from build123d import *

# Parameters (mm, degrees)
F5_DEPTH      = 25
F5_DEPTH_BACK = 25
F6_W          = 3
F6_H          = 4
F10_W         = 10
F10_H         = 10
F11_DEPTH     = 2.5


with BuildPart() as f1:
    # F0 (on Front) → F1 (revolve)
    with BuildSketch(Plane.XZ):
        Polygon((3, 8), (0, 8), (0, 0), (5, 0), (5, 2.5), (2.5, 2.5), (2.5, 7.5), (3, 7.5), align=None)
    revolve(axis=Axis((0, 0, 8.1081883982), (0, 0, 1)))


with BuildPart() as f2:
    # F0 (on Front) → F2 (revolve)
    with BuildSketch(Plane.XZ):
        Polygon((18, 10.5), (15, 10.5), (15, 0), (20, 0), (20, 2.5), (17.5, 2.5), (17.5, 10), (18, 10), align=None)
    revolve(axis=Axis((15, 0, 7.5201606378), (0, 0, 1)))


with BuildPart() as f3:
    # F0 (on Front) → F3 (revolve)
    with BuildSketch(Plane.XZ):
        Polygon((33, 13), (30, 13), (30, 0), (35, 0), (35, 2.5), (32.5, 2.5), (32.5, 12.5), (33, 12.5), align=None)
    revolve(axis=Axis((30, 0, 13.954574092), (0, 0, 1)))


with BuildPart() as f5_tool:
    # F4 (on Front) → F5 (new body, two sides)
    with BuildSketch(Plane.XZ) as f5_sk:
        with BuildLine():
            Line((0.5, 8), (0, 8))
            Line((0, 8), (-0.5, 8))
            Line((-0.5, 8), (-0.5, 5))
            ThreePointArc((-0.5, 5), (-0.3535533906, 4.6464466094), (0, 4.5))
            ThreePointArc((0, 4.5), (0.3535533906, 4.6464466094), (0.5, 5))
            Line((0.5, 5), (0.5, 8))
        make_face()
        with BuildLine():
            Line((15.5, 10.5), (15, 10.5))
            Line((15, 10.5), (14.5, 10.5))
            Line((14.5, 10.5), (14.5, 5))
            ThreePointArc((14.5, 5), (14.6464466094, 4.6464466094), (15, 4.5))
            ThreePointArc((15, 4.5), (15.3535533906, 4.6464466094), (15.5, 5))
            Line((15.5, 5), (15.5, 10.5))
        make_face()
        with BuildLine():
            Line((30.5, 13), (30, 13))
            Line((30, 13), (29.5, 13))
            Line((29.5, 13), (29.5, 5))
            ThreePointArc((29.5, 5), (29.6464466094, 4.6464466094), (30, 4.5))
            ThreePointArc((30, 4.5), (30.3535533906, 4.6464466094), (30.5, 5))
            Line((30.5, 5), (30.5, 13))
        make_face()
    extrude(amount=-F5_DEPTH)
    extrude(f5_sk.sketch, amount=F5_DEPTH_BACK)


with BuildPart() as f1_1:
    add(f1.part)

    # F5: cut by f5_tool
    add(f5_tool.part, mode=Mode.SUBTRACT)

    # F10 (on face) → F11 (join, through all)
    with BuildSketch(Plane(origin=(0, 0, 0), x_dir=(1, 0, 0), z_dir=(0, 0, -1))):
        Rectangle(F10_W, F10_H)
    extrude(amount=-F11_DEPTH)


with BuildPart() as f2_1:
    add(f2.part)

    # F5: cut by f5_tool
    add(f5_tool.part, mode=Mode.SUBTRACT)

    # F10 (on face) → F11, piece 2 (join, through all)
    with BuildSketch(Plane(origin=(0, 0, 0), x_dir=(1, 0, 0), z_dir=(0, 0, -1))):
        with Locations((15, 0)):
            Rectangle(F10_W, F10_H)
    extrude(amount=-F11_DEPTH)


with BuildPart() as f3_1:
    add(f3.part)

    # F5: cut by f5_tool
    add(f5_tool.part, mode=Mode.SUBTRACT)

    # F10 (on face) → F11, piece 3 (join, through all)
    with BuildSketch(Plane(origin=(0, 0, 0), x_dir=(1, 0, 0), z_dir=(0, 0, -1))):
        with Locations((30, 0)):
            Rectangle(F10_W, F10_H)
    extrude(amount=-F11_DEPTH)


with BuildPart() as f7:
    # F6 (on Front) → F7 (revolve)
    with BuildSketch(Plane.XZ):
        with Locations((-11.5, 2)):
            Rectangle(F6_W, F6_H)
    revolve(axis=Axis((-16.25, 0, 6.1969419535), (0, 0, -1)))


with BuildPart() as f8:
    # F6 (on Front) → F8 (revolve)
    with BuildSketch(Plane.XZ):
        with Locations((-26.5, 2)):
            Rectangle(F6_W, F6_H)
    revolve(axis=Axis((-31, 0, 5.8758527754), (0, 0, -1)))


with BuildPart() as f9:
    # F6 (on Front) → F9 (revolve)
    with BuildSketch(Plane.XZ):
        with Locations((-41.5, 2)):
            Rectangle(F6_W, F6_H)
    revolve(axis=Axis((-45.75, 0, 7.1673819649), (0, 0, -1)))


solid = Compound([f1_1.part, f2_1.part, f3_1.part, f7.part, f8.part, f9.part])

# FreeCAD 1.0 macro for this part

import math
import FreeCAD as App
import Part
import Sketcher

V = App.Vector
Q = App.Units.Quantity


def add_polygon(sketch, points):
    """Adds a closed chain of lines whose ends are joined by coincident constraints."""
    first, n = sketch.GeometryCount, len(points)
    for a, b in zip(points, points[1:] + points[:1]):
        sketch.addGeometry(Part.LineSegment(App.Vector(*a, 0), App.Vector(*b, 0)), False)
    for i in range(n):
        sketch.addConstraint(Sketcher.Constraint("Coincident", first + i, 2, first + (i + 1) % n, 1))

doc = App.newDocument("Part")
params = doc.addObject("Spreadsheet::Sheet", "Params")
for row, (alias, value) in enumerate([
    ("sketch1_width", "3 mm"),
    ("sketch1_width2", "5 mm"),
    ("sketch1_height", "8 mm"),
    ("revolution_angle", "360 deg"),
    ("sketch2_width", "3 mm"),
    ("sketch2_width2", "5 mm"),
    ("sketch2_width3", "2.5 mm"),
    ("sketch2_height", "10.5 mm"),
    ("revolution2_angle", "360 deg"),
    ("sketch3_width", "3 mm"),
    ("sketch3_width2", "5 mm"),
    ("sketch3_height", "13 mm"),
    ("sketch3_height2", "10 mm"),
    ("revolution3_angle", "360 deg"),
    ("sketch4_radius", "0.5 mm"),
    ("sketch4_height", "3 mm"),
    ("sketch4_height2", "8 mm"),
    ("sketch4_height3", "5.5 mm"),
    ("pad1_length", "25 mm"),
    ("pad1_length2", "25 mm"),
    ("sketch5_width", "10 mm"),
    ("pad2_length", "2.5 mm"),
    ("sketch6_width", "10 mm"),
    ("pad3_length", "2.5 mm"),
    ("sketch7_width", "10 mm"),
    ("pad4_length", "2.5 mm"),
    ("sketch8_width", "3 mm"),
    ("sketch8_height", "4 mm"),
    ("revolution4_angle", "360 deg"),
    ("sketch9_width", "3 mm"),
    ("sketch9_height", "4 mm"),
    ("revolution5_angle", "360 deg"),
    ("sketch10_width", "3 mm"),
    ("sketch10_height", "4 mm"),
    ("revolution6_angle", "360 deg"),
], start=1):
    params.set(f"A{row}", alias)
    params.set(f"B{row}", "=" + value)
    params.setAlias(f"B{row}", alias)

body = doc.addObject("PartDesign::Body", "Body")

sketch1 = doc.addObject("Sketcher::SketchObject", "Sketch")
body.addObject(sketch1)
sketch1.AttachmentSupport = (doc.XZ_Plane, [""])
sketch1.MapMode = "FlatFace"
add_polygon(sketch1, [(3, 8), (0, 8), (0, 0), (5, 0), (5, 2.5), (2.5, 2.5), (2.5, 7.5), (3, 7.5)])
sketch1.addConstraint([
    Sketcher.Constraint("Horizontal", 0),
    Sketcher.Constraint("Vertical", 1),
    Sketcher.Constraint("Horizontal", 2),
    Sketcher.Constraint("Vertical", 3),
    Sketcher.Constraint("Horizontal", 4),
    Sketcher.Constraint("Vertical", 5),
    Sketcher.Constraint("Horizontal", 6),
    Sketcher.Constraint("Vertical", 7),
    Sketcher.Constraint("Coincident", 1, 2, -1, 1),
    Sketcher.Constraint("Equal", 4, 3),
    Sketcher.Constraint("Equal", 2, 5),
    Sketcher.Constraint("Equal", 6, 7),
    Sketcher.Constraint("DistanceX", 0, 2, 0, 1, Q("3 mm")),
    Sketcher.Constraint("DistanceX", 2, 1, 2, 2, Q("5 mm")),
    Sketcher.Constraint("DistanceY", 1, 2, 1, 1, Q("8 mm")),
])
sketch1.setExpression("Constraints[20]", "Params.sketch1_width")
sketch1.setExpression("Constraints[21]", "Params.sketch1_width2")
sketch1.setExpression("Constraints[22]", "Params.sketch1_height")
revolution = doc.addObject("PartDesign::Revolution", "Revolution")
body.addObject(revolution)
revolution.Profile = sketch1
revolution.ReferenceAxis = (sketch1, ["V_Axis"])
revolution.setExpression("Angle", "Params.revolution_angle")
body2 = doc.addObject("PartDesign::Body", "Body001")

sketch2 = doc.addObject("Sketcher::SketchObject", "Sketch001")
body2.addObject(sketch2)
sketch2.AttachmentSupport = (doc.getObject("XZ_Plane001"), [""])
sketch2.MapMode = "FlatFace"
add_polygon(sketch2, [(18, 10.5), (15, 10.5), (15, 0), (20, 0), (20, 2.5), (17.5, 2.5), (17.5, 10), (18, 10)])
sketch2.addGeometry(Part.LineSegment(V(15, 0, 0), V(15, 10.5, 0)), True)
sketch2.addConstraint([
    Sketcher.Constraint("Horizontal", 0),
    Sketcher.Constraint("Vertical", 1),
    Sketcher.Constraint("Horizontal", 2),
    Sketcher.Constraint("Vertical", 3),
    Sketcher.Constraint("Horizontal", 4),
    Sketcher.Constraint("Vertical", 5),
    Sketcher.Constraint("Horizontal", 6),
    Sketcher.Constraint("Vertical", 7),
    Sketcher.Constraint("Vertical", 8),
    Sketcher.Constraint("Coincident", 8, 1, 1, 2),
    Sketcher.Constraint("PointOnObject", 1, 2, -1),
    Sketcher.Constraint("Horizontal", 7, 2, 8, 2),
    Sketcher.Constraint("Equal", 4, 3),
    Sketcher.Constraint("Equal", 6, 7),
    Sketcher.Constraint("DistanceX", 0, 2, 0, 1, Q("3 mm")),
    Sketcher.Constraint("DistanceX", 2, 1, 2, 2, Q("5 mm")),
    Sketcher.Constraint("DistanceX", 4, 2, 4, 1, Q("2.5 mm")),
    Sketcher.Constraint("DistanceY", 1, 2, 1, 1, Q("10.5 mm")),
    Sketcher.Constraint("DistanceX", -1, 1, 0, 2, Q("15 mm")),
])
sketch2.setExpression("Constraints[22]", "Params.sketch2_width")
sketch2.setExpression("Constraints[23]", "Params.sketch2_width2")
sketch2.setExpression("Constraints[24]", "Params.sketch2_width3")
sketch2.setExpression("Constraints[25]", "Params.sketch2_height")
revolution2 = doc.addObject("PartDesign::Revolution", "Revolution001")
body2.addObject(revolution2)
revolution2.Profile = sketch2
revolution2.ReferenceAxis = (sketch2, ["Axis0"])
revolution2.setExpression("Angle", "Params.revolution2_angle")
body3 = doc.addObject("PartDesign::Body", "Body002")

sketch3 = doc.addObject("Sketcher::SketchObject", "Sketch002")
body3.addObject(sketch3)
sketch3.AttachmentSupport = (doc.getObject("XZ_Plane002"), [""])
sketch3.MapMode = "FlatFace"
add_polygon(sketch3, [(33, 13), (30, 13), (30, 0), (35, 0), (35, 2.5), (32.5, 2.5), (32.5, 12.5), (33, 12.5)])
sketch3.addGeometry(Part.LineSegment(V(30, 0, 0), V(30, 13, 0)), True)
sketch3.addConstraint([
    Sketcher.Constraint("Horizontal", 0),
    Sketcher.Constraint("Vertical", 1),
    Sketcher.Constraint("Horizontal", 2),
    Sketcher.Constraint("Vertical", 3),
    Sketcher.Constraint("Horizontal", 4),
    Sketcher.Constraint("Vertical", 5),
    Sketcher.Constraint("Horizontal", 6),
    Sketcher.Constraint("Vertical", 7),
    Sketcher.Constraint("Vertical", 8),
    Sketcher.Constraint("Coincident", 8, 1, 1, 2),
    Sketcher.Constraint("PointOnObject", 1, 2, -1),
    Sketcher.Constraint("Horizontal", 7, 2, 8, 2),
    Sketcher.Constraint("Equal", 4, 3),
    Sketcher.Constraint("Equal", 6, 7),
    Sketcher.Constraint("DistanceX", 0, 2, 0, 1, Q("3 mm")),
    Sketcher.Constraint("DistanceX", 2, 1, 2, 2, Q("5 mm")),
    Sketcher.Constraint("DistanceY", 1, 2, 1, 1, Q("13 mm")),
    Sketcher.Constraint("DistanceY", 5, 1, 5, 2, Q("10 mm")),
    Sketcher.Constraint("DistanceX", -1, 1, 0, 2, Q("30 mm")),
])
sketch3.setExpression("Constraints[22]", "Params.sketch3_width")
sketch3.setExpression("Constraints[23]", "Params.sketch3_width2")
sketch3.setExpression("Constraints[24]", "Params.sketch3_height")
sketch3.setExpression("Constraints[25]", "Params.sketch3_height2")
revolution3 = doc.addObject("PartDesign::Revolution", "Revolution002")
body3.addObject(revolution3)
revolution3.Profile = sketch3
revolution3.ReferenceAxis = (sketch3, ["Axis0"])
revolution3.setExpression("Angle", "Params.revolution3_angle")
body4 = doc.addObject("PartDesign::Body", "Body003")
body4.AllowCompound = True

sketch4 = doc.addObject("Sketcher::SketchObject", "Sketch003")
body4.addObject(sketch4)
sketch4.AttachmentSupport = (doc.getObject("XZ_Plane003"), [""])
sketch4.MapMode = "FlatFace"
sketch4.addGeometry([
    Part.LineSegment(V(0.5, 8, 0), V(-0.5, 8, 0)),
    Part.LineSegment(V(-0.5, 8, 0), V(-0.5, 5, 0)),
    Part.ArcOfCircle(Part.Circle(V(0, 5, 0), V(0, 0, 1), 0.5), math.radians(180), math.radians(270)),
    Part.ArcOfCircle(Part.Circle(V(0, 5, 0), V(0, 0, 1), 0.5), math.radians(-90), math.radians(0)),
    Part.LineSegment(V(0.5, 5, 0), V(0.5, 8, 0)),
    Part.LineSegment(V(15.5, 10.5, 0), V(14.5, 10.5, 0)),
    Part.LineSegment(V(14.5, 10.5, 0), V(14.5, 5, 0)),
    Part.ArcOfCircle(Part.Circle(V(15, 5, 0), V(0, 0, 1), 0.5), math.radians(180), math.radians(270)),
    Part.ArcOfCircle(Part.Circle(V(15, 5, 0), V(0, 0, 1), 0.5), math.radians(-90), math.radians(0)),
    Part.LineSegment(V(15.5, 5, 0), V(15.5, 10.5, 0)),
    Part.LineSegment(V(30.5, 13, 0), V(29.5, 13, 0)),
    Part.LineSegment(V(29.5, 13, 0), V(29.5, 5, 0)),
    Part.ArcOfCircle(Part.Circle(V(30, 5, 0), V(0, 0, 1), 0.5), math.radians(180), math.radians(270)),
    Part.ArcOfCircle(Part.Circle(V(30, 5, 0), V(0, 0, 1), 0.5), math.radians(-90), math.radians(0)),
    Part.LineSegment(V(30.5, 5, 0), V(30.5, 13, 0)),
], False)
sketch4.addConstraint([
    Sketcher.Constraint("Coincident", 0, 2, 1, 1),
    Sketcher.Constraint("Tangent", 1, 2, 2, 1),
    Sketcher.Constraint("Tangent", 2, 2, 3, 1),
    Sketcher.Constraint("Tangent", 3, 2, 4, 1),
    Sketcher.Constraint("Coincident", 4, 2, 0, 1),
    Sketcher.Constraint("Coincident", 5, 2, 6, 1),
    Sketcher.Constraint("Tangent", 6, 2, 7, 1),
    Sketcher.Constraint("Tangent", 7, 2, 8, 1),
    Sketcher.Constraint("Tangent", 8, 2, 9, 1),
    Sketcher.Constraint("Coincident", 9, 2, 5, 1),
    Sketcher.Constraint("Coincident", 10, 2, 11, 1),
    Sketcher.Constraint("Tangent", 11, 2, 12, 1),
    Sketcher.Constraint("Tangent", 12, 2, 13, 1),
    Sketcher.Constraint("Tangent", 13, 2, 14, 1),
    Sketcher.Constraint("Coincident", 14, 2, 10, 1),
    Sketcher.Constraint("Horizontal", 0),
    Sketcher.Constraint("Vertical", 1),
    Sketcher.Constraint("Vertical", 4),
    Sketcher.Constraint("Horizontal", 5),
    Sketcher.Constraint("Vertical", 6),
    Sketcher.Constraint("Vertical", 9),
    Sketcher.Constraint("Horizontal", 10),
    Sketcher.Constraint("Vertical", 11),
    Sketcher.Constraint("Vertical", 14),
    Sketcher.Constraint("Equal", 2, 3),
    Sketcher.Constraint("Equal", 3, 7),
    Sketcher.Constraint("Equal", 7, 8),
    Sketcher.Constraint("Equal", 8, 12),
    Sketcher.Constraint("Equal", 12, 13),
    Sketcher.Constraint("PointOnObject", 2, 3, -2),
    Sketcher.Constraint("PointOnObject", 2, 2, -2),
    Sketcher.Constraint("Horizontal", 3, 3, 7, 3),
    Sketcher.Constraint("Horizontal", 8, 3, 12, 3),
    Sketcher.Constraint("Vertical", 8, 3, 7, 2),
    Sketcher.Constraint("Vertical", 13, 3, 12, 2),
    Sketcher.Constraint("Radius", 2, Q("0.5 mm")),
    Sketcher.Constraint("DistanceY", 1, 2, 1, 1, Q("3 mm")),
    Sketcher.Constraint("DistanceY", 11, 2, 11, 1, Q("8 mm")),
    Sketcher.Constraint("DistanceY", 6, 2, 6, 1, Q("5.5 mm")),
    Sketcher.Constraint("DistanceY", -1, 1, 2, 3, Q("5 mm")),
    Sketcher.Constraint("DistanceX", -1, 1, 7, 3, Q("15 mm")),
    Sketcher.Constraint("DistanceX", -1, 1, 12, 3, Q("30 mm")),
])
sketch4.setExpression("Constraints[35]", "Params.sketch4_radius")
sketch4.setExpression("Constraints[36]", "Params.sketch4_height")
sketch4.setExpression("Constraints[37]", "Params.sketch4_height2")
sketch4.setExpression("Constraints[38]", "Params.sketch4_height3")
pad1 = doc.addObject("PartDesign::Pad", "Pad")
body4.addObject(pad1)
pad1.Profile = sketch4
pad1.Type = "TwoLengths"
pad1.setExpression("Length", "Params.pad1_length")
pad1.setExpression("Length2", "Params.pad1_length2")
pad1.Reversed = True
doc.recompute()

body5 = doc.addObject("PartDesign::Body", "Body004")
body5.BaseFeature = body4
boolean = doc.addObject("PartDesign::Boolean", "Boolean")
body.addObject(boolean)
boolean.Type = "Cut"
boolean.addObjects([body5])
doc.recompute()

sketch5 = doc.addObject("Sketcher::SketchObject", "Sketch004")
body.addObject(sketch5)
sketch5.AttachmentSupport = (doc.XY_Plane, [""])
sketch5.MapMode = "FlatFace"
add_polygon(sketch5, [(-5, -5), (-5, 5), (5, 5), (5, -5)])
sketch5.addConstraint([
    Sketcher.Constraint("Vertical", 0),
    Sketcher.Constraint("Horizontal", 1),
    Sketcher.Constraint("Vertical", 2),
    Sketcher.Constraint("Horizontal", 3),
    Sketcher.Constraint("Symmetric", 0, 2, 2, 2, -1, 1),
    Sketcher.Constraint("Equal", 3, 0),
    Sketcher.Constraint("DistanceX", 1, 1, 1, 2, Q("10 mm")),
])
sketch5.setExpression("Constraints[10]", "Params.sketch5_width")
pad2 = doc.addObject("PartDesign::Pad", "Pad001")
body.addObject(pad2)
pad2.Profile = sketch5
pad2.setExpression("Length", "Params.pad2_length")
doc.recompute()

body6 = doc.addObject("PartDesign::Body", "Body005")
body6.BaseFeature = body4
boolean2 = doc.addObject("PartDesign::Boolean", "Boolean001")
body2.addObject(boolean2)
boolean2.Type = "Cut"
boolean2.addObjects([body6])
doc.recompute()

sketch6 = doc.addObject("Sketcher::SketchObject", "Sketch005")
body2.addObject(sketch6)
sketch6.AttachmentSupport = (doc.getObject("XY_Plane001"), [""])
sketch6.MapMode = "FlatFace"
add_polygon(sketch6, [(10, -5), (10, 5), (20, 5), (20, -5)])
sketch6.addConstraint([
    Sketcher.Constraint("Vertical", 0),
    Sketcher.Constraint("Horizontal", 1),
    Sketcher.Constraint("Vertical", 2),
    Sketcher.Constraint("Horizontal", 3),
    Sketcher.Constraint("Equal", 3, 0),
    Sketcher.Constraint("DistanceX", 1, 1, 1, 2, Q("10 mm")),
    Sketcher.Constraint("DistanceX", -1, 1, 0, 2, Q("10 mm")),
    Sketcher.Constraint("DistanceY", -1, 1, 0, 2, Q("5 mm")),
])
sketch6.setExpression("Constraints[9]", "Params.sketch6_width")
pad3 = doc.addObject("PartDesign::Pad", "Pad002")
body2.addObject(pad3)
pad3.Profile = sketch6
pad3.setExpression("Length", "Params.pad3_length")
doc.recompute()

boolean3 = doc.addObject("PartDesign::Boolean", "Boolean002")
body3.addObject(boolean3)
boolean3.Type = "Cut"
boolean3.addObjects([body4])

sketch7 = doc.addObject("Sketcher::SketchObject", "Sketch006")
body3.addObject(sketch7)
sketch7.AttachmentSupport = (doc.getObject("XY_Plane002"), [""])
sketch7.MapMode = "FlatFace"
add_polygon(sketch7, [(25, -5), (25, 5), (35, 5), (35, -5)])
sketch7.addConstraint([
    Sketcher.Constraint("Vertical", 0),
    Sketcher.Constraint("Horizontal", 1),
    Sketcher.Constraint("Vertical", 2),
    Sketcher.Constraint("Horizontal", 3),
    Sketcher.Constraint("Equal", 3, 0),
    Sketcher.Constraint("DistanceX", 1, 1, 1, 2, Q("10 mm")),
    Sketcher.Constraint("DistanceX", -1, 1, 0, 2, Q("25 mm")),
    Sketcher.Constraint("DistanceY", -1, 1, 0, 2, Q("5 mm")),
])
sketch7.setExpression("Constraints[9]", "Params.sketch7_width")
pad4 = doc.addObject("PartDesign::Pad", "Pad003")
body3.addObject(pad4)
pad4.Profile = sketch7
pad4.setExpression("Length", "Params.pad4_length")
body7 = doc.addObject("PartDesign::Body", "Body006")

sketch8 = doc.addObject("Sketcher::SketchObject", "Sketch007")
body7.addObject(sketch8)
sketch8.AttachmentSupport = (doc.getObject("XZ_Plane006"), [""])
sketch8.MapMode = "FlatFace"
add_polygon(sketch8, [(-13, 4), (-13, 0), (-10, 0), (-10, 4)])
sketch8.addGeometry(Part.LineSegment(V(-16.2, 4, 0), V(-16.2, 0, 0)), True)
sketch8.addConstraint([
    Sketcher.Constraint("Vertical", 0),
    Sketcher.Constraint("Horizontal", 1),
    Sketcher.Constraint("Vertical", 2),
    Sketcher.Constraint("Horizontal", 3),
    Sketcher.Constraint("Vertical", 4),
    Sketcher.Constraint("PointOnObject", 0, 2, -1),
    Sketcher.Constraint("PointOnObject", 4, 2, -1),
    Sketcher.Constraint("Horizontal", 3, 2, 4, 1),
    Sketcher.Constraint("DistanceX", 1, 1, 1, 2, Q("3 mm")),
    Sketcher.Constraint("DistanceY", 0, 2, 0, 1, Q("4 mm")),
    Sketcher.Constraint("DistanceX", 0, 2, -1, 1, Q("13 mm")),
    Sketcher.Constraint("DistanceX", 4, 1, -1, 1, Q("16.25 mm")),
])
sketch8.setExpression("Constraints[12]", "Params.sketch8_width")
sketch8.setExpression("Constraints[13]", "Params.sketch8_height")
revolution4 = doc.addObject("PartDesign::Revolution", "Revolution003")
body7.addObject(revolution4)
revolution4.Profile = sketch8
revolution4.ReferenceAxis = (sketch8, ["Axis0"])
revolution4.setExpression("Angle", "Params.revolution4_angle")
body8 = doc.addObject("PartDesign::Body", "Body007")

sketch9 = doc.addObject("Sketcher::SketchObject", "Sketch008")
body8.addObject(sketch9)
sketch9.AttachmentSupport = (doc.getObject("XZ_Plane007"), [""])
sketch9.MapMode = "FlatFace"
add_polygon(sketch9, [(-28, 4), (-28, 0), (-25, 0), (-25, 4)])
sketch9.addGeometry(Part.LineSegment(V(-31, 4, 0), V(-31, 0, 0)), True)
sketch9.addConstraint([
    Sketcher.Constraint("Vertical", 0),
    Sketcher.Constraint("Horizontal", 1),
    Sketcher.Constraint("Vertical", 2),
    Sketcher.Constraint("Horizontal", 3),
    Sketcher.Constraint("Vertical", 4),
    Sketcher.Constraint("PointOnObject", 0, 2, -1),
    Sketcher.Constraint("PointOnObject", 4, 2, -1),
    Sketcher.Constraint("Horizontal", 3, 2, 4, 1),
    Sketcher.Constraint("DistanceX", 1, 1, 1, 2, Q("3 mm")),
    Sketcher.Constraint("DistanceY", 0, 2, 0, 1, Q("4 mm")),
    Sketcher.Constraint("DistanceX", 0, 2, -1, 1, Q("28 mm")),
    Sketcher.Constraint("DistanceX", 4, 1, -1, 1, Q("31 mm")),
])
sketch9.setExpression("Constraints[12]", "Params.sketch9_width")
sketch9.setExpression("Constraints[13]", "Params.sketch9_height")
revolution5 = doc.addObject("PartDesign::Revolution", "Revolution004")
body8.addObject(revolution5)
revolution5.Profile = sketch9
revolution5.ReferenceAxis = (sketch9, ["Axis0"])
revolution5.setExpression("Angle", "Params.revolution5_angle")
body9 = doc.addObject("PartDesign::Body", "Body008")

sketch10 = doc.addObject("Sketcher::SketchObject", "Sketch009")
body9.addObject(sketch10)
sketch10.AttachmentSupport = (doc.getObject("XZ_Plane008"), [""])
sketch10.MapMode = "FlatFace"
add_polygon(sketch10, [(-43, 4), (-43, 0), (-40, 0), (-40, 4)])
sketch10.addGeometry(Part.LineSegment(V(-45.8, 4, 0), V(-45.8, 0, 0)), True)
sketch10.addConstraint([
    Sketcher.Constraint("Vertical", 0),
    Sketcher.Constraint("Horizontal", 1),
    Sketcher.Constraint("Vertical", 2),
    Sketcher.Constraint("Horizontal", 3),
    Sketcher.Constraint("Vertical", 4),
    Sketcher.Constraint("PointOnObject", 0, 2, -1),
    Sketcher.Constraint("PointOnObject", 4, 2, -1),
    Sketcher.Constraint("Horizontal", 3, 2, 4, 1),
    Sketcher.Constraint("DistanceX", 1, 1, 1, 2, Q("3 mm")),
    Sketcher.Constraint("DistanceY", 0, 2, 0, 1, Q("4 mm")),
    Sketcher.Constraint("DistanceX", 0, 2, -1, 1, Q("43 mm")),
    Sketcher.Constraint("DistanceX", 4, 1, -1, 1, Q("45.75 mm")),
])
sketch10.setExpression("Constraints[12]", "Params.sketch10_width")
sketch10.setExpression("Constraints[13]", "Params.sketch10_height")
revolution6 = doc.addObject("PartDesign::Revolution", "Revolution005")
body9.addObject(revolution6)
revolution6.Profile = sketch10
revolution6.ReferenceAxis = (sketch10, ["Axis0"])
revolution6.setExpression("Angle", "Params.revolution6_angle")

doc.recompute()
